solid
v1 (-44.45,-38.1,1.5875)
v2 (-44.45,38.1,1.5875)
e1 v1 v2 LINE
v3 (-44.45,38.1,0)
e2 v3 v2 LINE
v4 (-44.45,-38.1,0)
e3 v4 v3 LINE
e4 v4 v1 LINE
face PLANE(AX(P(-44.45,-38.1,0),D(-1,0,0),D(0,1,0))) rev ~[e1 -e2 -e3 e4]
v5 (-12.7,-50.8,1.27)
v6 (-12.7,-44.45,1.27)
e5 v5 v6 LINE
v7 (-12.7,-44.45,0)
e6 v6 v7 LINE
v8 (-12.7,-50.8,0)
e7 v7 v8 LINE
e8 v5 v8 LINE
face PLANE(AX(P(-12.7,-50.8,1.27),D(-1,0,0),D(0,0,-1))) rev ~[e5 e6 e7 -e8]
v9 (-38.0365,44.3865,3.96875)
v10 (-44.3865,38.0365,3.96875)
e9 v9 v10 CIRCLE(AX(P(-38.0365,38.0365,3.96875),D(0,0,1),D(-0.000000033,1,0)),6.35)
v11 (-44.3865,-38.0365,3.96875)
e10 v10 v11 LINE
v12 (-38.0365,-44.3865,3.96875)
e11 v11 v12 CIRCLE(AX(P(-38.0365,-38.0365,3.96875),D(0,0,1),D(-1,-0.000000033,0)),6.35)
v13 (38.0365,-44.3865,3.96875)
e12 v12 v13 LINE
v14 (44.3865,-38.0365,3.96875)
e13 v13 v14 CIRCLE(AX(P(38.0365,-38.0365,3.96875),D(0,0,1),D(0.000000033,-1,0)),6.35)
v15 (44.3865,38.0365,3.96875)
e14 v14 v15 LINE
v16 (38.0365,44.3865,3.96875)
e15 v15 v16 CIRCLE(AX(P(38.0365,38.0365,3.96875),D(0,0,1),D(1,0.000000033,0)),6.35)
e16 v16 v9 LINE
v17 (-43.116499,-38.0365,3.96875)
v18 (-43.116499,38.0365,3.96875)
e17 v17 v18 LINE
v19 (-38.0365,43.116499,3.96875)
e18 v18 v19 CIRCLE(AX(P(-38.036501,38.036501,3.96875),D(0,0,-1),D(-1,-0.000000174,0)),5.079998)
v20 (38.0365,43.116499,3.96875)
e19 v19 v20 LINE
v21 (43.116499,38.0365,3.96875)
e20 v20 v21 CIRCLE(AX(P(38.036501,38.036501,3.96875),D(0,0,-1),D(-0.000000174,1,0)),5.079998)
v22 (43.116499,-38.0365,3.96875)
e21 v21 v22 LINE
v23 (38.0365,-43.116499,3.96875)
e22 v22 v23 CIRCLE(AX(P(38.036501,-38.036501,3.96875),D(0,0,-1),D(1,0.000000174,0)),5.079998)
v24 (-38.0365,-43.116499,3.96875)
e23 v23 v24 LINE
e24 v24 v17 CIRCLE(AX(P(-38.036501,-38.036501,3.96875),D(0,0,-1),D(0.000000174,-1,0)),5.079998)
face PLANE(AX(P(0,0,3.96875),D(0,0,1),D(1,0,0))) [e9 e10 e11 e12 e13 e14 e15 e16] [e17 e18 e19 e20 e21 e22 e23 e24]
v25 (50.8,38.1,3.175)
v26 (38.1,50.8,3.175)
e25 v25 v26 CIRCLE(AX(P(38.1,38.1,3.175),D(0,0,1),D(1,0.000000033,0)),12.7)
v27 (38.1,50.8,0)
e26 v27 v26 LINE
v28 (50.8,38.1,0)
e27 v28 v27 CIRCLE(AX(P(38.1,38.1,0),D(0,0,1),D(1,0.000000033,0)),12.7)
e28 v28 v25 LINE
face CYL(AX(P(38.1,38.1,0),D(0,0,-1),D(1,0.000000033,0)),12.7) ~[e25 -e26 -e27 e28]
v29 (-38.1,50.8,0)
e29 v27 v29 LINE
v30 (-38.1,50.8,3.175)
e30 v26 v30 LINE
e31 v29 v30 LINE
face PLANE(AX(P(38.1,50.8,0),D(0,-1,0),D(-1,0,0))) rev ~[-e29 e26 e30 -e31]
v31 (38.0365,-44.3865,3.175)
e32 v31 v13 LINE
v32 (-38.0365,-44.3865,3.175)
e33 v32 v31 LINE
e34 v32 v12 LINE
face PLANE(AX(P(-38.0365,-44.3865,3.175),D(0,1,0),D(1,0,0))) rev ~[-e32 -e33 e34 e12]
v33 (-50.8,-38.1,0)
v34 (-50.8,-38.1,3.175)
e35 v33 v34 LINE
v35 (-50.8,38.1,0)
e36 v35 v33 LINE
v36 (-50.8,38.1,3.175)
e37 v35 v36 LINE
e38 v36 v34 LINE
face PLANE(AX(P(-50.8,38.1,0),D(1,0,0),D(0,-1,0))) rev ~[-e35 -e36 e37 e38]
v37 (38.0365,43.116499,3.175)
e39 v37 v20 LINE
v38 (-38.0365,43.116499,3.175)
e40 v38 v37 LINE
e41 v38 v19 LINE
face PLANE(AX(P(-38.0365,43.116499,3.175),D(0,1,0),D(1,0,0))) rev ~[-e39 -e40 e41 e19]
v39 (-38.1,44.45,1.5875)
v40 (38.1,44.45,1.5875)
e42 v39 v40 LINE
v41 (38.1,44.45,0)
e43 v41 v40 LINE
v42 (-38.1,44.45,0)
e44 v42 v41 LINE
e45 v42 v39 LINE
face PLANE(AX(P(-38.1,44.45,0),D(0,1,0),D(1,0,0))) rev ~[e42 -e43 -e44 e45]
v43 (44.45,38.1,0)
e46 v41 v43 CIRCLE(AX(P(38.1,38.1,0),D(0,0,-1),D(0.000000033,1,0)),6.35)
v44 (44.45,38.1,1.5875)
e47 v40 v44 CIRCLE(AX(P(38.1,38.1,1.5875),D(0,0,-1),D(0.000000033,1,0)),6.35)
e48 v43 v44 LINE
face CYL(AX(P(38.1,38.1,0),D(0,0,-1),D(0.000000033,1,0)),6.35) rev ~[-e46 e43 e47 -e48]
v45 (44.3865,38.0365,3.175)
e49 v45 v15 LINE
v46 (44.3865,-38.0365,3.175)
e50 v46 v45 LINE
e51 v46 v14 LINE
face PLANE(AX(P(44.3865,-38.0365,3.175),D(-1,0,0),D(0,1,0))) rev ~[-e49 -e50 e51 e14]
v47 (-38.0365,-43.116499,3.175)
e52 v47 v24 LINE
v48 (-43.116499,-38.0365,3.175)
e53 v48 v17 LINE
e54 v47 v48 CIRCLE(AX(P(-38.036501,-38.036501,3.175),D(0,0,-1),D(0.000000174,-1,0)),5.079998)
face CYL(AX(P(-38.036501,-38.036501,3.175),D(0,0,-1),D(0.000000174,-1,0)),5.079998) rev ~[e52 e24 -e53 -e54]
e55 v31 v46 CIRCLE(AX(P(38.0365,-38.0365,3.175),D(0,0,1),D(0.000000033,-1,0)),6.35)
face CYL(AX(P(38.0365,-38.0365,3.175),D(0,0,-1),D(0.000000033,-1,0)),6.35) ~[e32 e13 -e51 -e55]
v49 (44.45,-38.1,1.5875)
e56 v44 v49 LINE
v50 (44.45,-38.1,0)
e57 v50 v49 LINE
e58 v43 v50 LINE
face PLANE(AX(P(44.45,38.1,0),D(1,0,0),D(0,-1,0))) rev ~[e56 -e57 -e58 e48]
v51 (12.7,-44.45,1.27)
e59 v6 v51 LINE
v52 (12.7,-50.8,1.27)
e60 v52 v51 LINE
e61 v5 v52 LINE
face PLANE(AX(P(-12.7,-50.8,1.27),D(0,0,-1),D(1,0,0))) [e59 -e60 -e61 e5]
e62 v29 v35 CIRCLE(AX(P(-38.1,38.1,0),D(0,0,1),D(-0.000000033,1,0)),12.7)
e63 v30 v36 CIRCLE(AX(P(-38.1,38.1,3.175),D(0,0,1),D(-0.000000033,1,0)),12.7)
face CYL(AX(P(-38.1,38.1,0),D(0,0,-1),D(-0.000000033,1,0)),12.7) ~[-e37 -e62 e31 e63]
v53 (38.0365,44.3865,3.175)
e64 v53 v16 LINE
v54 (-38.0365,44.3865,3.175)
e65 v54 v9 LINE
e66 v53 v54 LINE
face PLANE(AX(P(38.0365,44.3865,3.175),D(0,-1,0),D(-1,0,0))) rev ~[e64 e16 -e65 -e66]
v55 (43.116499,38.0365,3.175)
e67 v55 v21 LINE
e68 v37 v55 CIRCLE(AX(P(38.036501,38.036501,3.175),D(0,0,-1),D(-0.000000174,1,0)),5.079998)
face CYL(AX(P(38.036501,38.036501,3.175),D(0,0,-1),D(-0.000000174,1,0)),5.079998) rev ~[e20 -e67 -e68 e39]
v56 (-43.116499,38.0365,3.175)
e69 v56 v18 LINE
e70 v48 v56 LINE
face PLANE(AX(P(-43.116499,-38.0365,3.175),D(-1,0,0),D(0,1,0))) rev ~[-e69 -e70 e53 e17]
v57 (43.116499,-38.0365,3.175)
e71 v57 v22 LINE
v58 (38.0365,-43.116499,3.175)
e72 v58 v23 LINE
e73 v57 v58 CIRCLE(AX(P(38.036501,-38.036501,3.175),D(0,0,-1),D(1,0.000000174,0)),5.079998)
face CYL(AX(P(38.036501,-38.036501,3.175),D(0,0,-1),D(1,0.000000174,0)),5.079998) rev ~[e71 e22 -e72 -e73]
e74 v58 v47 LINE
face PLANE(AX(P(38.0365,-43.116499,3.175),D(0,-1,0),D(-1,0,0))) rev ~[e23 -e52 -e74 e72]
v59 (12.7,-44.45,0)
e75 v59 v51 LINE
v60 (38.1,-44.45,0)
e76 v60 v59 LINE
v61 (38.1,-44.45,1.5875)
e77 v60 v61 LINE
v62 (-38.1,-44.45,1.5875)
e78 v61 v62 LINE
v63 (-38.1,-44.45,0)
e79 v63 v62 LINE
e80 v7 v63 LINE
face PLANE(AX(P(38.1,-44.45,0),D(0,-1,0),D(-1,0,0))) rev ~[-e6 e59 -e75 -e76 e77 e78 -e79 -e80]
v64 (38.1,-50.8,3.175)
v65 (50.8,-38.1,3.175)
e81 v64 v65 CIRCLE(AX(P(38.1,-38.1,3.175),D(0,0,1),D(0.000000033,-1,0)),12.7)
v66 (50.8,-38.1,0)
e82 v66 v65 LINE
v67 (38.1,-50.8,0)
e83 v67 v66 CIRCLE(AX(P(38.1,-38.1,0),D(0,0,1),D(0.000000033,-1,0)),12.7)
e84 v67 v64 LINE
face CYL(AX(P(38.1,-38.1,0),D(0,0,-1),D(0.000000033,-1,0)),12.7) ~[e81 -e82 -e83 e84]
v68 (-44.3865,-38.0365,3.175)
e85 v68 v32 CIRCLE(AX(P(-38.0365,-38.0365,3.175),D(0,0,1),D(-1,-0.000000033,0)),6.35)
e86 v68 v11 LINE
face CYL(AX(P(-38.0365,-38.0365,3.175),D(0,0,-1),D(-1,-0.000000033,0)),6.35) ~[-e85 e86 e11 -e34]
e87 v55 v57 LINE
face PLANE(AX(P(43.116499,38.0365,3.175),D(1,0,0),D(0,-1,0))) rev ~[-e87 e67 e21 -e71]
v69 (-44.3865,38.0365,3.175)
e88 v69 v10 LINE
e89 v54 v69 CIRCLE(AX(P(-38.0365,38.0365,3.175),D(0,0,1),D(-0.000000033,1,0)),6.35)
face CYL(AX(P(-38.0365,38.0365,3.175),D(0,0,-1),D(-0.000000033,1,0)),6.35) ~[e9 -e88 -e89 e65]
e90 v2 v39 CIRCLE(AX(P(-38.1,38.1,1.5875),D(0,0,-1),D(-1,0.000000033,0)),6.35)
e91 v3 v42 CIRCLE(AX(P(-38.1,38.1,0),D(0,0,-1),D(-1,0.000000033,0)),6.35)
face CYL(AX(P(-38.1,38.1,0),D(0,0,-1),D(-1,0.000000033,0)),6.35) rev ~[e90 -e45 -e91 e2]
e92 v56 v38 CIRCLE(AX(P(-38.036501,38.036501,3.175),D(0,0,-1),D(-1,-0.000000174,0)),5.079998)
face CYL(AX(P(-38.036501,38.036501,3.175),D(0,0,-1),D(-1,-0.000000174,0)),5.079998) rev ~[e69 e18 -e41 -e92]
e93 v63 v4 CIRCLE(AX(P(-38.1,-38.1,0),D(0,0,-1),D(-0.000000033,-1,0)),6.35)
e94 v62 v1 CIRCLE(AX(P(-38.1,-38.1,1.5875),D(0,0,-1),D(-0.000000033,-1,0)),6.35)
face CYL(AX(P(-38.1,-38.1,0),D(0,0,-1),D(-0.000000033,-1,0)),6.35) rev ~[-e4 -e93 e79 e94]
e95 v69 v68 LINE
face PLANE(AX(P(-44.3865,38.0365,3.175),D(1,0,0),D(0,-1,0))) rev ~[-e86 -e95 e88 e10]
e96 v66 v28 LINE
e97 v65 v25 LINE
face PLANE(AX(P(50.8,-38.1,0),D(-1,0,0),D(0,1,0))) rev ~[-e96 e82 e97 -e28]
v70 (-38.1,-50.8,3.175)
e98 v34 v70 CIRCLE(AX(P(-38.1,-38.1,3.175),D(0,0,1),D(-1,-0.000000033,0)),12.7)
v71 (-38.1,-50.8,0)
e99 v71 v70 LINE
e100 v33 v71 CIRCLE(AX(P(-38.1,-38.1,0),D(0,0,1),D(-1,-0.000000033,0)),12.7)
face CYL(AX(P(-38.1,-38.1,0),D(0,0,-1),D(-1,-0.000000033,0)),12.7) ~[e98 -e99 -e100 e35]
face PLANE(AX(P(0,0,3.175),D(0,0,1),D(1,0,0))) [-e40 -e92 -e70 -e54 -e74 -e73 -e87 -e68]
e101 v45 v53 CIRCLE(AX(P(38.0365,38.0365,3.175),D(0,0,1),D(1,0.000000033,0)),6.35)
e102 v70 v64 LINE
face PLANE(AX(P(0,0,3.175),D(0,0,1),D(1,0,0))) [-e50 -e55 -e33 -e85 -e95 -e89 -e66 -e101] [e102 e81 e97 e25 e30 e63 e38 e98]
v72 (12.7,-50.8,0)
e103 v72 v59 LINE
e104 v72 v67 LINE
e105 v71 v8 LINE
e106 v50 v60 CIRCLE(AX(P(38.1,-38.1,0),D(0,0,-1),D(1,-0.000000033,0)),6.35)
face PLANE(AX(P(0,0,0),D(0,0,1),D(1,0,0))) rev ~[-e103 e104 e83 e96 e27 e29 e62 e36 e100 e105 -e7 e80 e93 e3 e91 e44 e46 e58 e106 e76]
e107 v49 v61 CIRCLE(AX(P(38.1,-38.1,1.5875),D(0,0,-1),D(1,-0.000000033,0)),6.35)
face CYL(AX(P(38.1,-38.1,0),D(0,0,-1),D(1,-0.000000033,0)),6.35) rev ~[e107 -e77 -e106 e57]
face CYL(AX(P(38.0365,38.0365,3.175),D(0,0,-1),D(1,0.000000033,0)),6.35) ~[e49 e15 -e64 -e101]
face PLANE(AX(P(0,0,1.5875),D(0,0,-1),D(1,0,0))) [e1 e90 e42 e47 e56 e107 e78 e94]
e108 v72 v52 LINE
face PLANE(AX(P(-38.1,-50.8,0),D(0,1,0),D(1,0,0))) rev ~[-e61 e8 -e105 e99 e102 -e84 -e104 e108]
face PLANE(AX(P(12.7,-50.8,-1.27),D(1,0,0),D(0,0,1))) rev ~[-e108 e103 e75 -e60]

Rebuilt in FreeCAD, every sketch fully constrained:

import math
import FreeCAD as App
import Part
import Sketcher
Q = App.Units.Quantity


def add_polygon(sketch, points):
    """Adds a closed chain of lines whose ends are joined by coincident constraints."""
    first, n = sketch.GeometryCount, len(points)
    for a, b in zip(points, points[1:] + points[:1]):
        sketch.addGeometry(Part.LineSegment(App.Vector(*a, 0), App.Vector(*b, 0)), False)
    for i in range(n):
        sketch.addConstraint(Sketcher.Constraint("Coincident", first + i, 2, first + (i + 1) % n, 1))

doc = App.newDocument("Part")
params = doc.addObject("Spreadsheet::Sheet", "Params")
for row, (alias, value) in enumerate([
    ("sketch1_radius", "0.5 in"),
    ("sketch1_width", "3 in"),
    ("pad1_length", "0.125 in"),
    ("sketch2_width", "3 in"),
    ("sketch2_radius", "0.25 in"),
    ("pocket1_length", "0.0625 in"),
    ("sketch3_width", "1 in"),
    ("sketch3_height", "0.1 in"),
    ("pocket2_length", "1 in"),
    ("sketch4_radius", "0.1999999 in"),
    ("sketch4_radius2", "0.25 in"),
    ("sketch4_width", "2.995 in"),
    ("pad2_length", "0.03125 in"),
], start=1):
    params.set(f"A{row}", alias)
    params.set(f"B{row}", "=" + value)
    params.setAlias(f"B{row}", alias)

body = doc.addObject("PartDesign::Body", "Body")

# Sketch on XY plane
sketch1 = body.newObject("Sketcher::SketchObject", "Sketch")
sketch1.AttachmentSupport = (doc.getObject("XY_Plane"), [""])
sketch1.MapMode = "FlatFace"
sketch1.addGeometry(Part.ArcOfCircle(Part.Circle(App.Vector(38.1, 38.1, 0), App.Vector(0, 0, 1), 12.7), math.radians(0.000002), math.radians(89.999998)), False)
sketch1.addGeometry(Part.LineSegment(App.Vector(38.1, 50.8, 0), App.Vector(-38.1, 50.8, 0)), False)
sketch1.addGeometry(Part.ArcOfCircle(Part.Circle(App.Vector(-38.1, 38.1, 0), App.Vector(0, 0, 1), 12.7), math.radians(90.000002), math.radians(179.999998)), False)
sketch1.addGeometry(Part.LineSegment(App.Vector(-50.8, 38.1, 0), App.Vector(-50.8, -38.1, 0)), False)
sketch1.addGeometry(Part.ArcOfCircle(Part.Circle(App.Vector(-38.1, -38.1, 0), App.Vector(0, 0, 1), 12.7), math.radians(-179.999998), math.radians(-90.000002)), False)
sketch1.addGeometry(Part.LineSegment(App.Vector(-38.1, -50.8, 0), App.Vector(38.1, -50.8, 0)), False)
sketch1.addGeometry(Part.ArcOfCircle(Part.Circle(App.Vector(38.1, -38.1, 0), App.Vector(0, 0, 1), 12.7), math.radians(-89.999998), math.radians(-0.000002)), False)
sketch1.addGeometry(Part.LineSegment(App.Vector(50.8, -38.1, 0), App.Vector(50.8, 38.1, 0)), False)
sketch1.addConstraint(Sketcher.Constraint("Tangent", 0, 2, 1, 1))
sketch1.addConstraint(Sketcher.Constraint("Tangent", 1, 2, 2, 1))
sketch1.addConstraint(Sketcher.Constraint("Tangent", 2, 2, 3, 1))
sketch1.addConstraint(Sketcher.Constraint("Tangent", 3, 2, 4, 1))
sketch1.addConstraint(Sketcher.Constraint("Tangent", 4, 2, 5, 1))
sketch1.addConstraint(Sketcher.Constraint("Tangent", 5, 2, 6, 1))
sketch1.addConstraint(Sketcher.Constraint("Tangent", 6, 2, 7, 1))
sketch1.addConstraint(Sketcher.Constraint("Tangent", 7, 2, 0, 1))
sketch1.addConstraint(Sketcher.Constraint("Horizontal", 1))
sketch1.addConstraint(Sketcher.Constraint("Vertical", 3))
sketch1.addConstraint(Sketcher.Constraint("Horizontal", 5))
sketch1.addConstraint(Sketcher.Constraint("Vertical", 7))
sketch1.addConstraint(Sketcher.Constraint("Equal", 0, 2))
sketch1.addConstraint(Sketcher.Constraint("Equal", 2, 4))
sketch1.addConstraint(Sketcher.Constraint("Equal", 4, 6))
sketch1.addConstraint(Sketcher.Constraint("Symmetric", 0, 3, 4, 3, -1, 1))
sketch1.addConstraint(Sketcher.Constraint("Equal", 5, 3))
sketch1.addConstraint(Sketcher.Constraint("Radius", 0, Q("0.5 in")))
sketch1.addConstraint(Sketcher.Constraint("DistanceX", 1, 2, 1, 1, Q("3 in")))
sketch1.setExpression("Constraints[17]", "Params.sketch1_radius")
sketch1.setExpression("Constraints[18]", "Params.sketch1_width")
pad1 = body.newObject("PartDesign::Pad", "Pad")
pad1.Profile = sketch1
pad1.setExpression("Length", "Params.pad1_length")

# Sketch on XY plane
sketch2 = body.newObject("Sketcher::SketchObject", "Sketch001")
sketch2.AttachmentSupport = (doc.getObject("XY_Plane"), [""])
sketch2.MapMode = "FlatFace"
sketch2.addGeometry(Part.ArcOfCircle(Part.Circle(App.Vector(38.1, -38.1, 0), App.Vector(0, 0, 1), 6.35), math.radians(-89.999998), math.radians(-0.000002)), False)
sketch2.addGeometry(Part.LineSegment(App.Vector(38.1, -44.45, 0), App.Vector(-38.1, -44.45, 0)), False)
sketch2.addGeometry(Part.ArcOfCircle(Part.Circle(App.Vector(-38.1, -38.1, 0), App.Vector(0, 0, 1), 6.35), math.radians(-179.999998), math.radians(-90.000002)), False)
sketch2.addGeometry(Part.LineSegment(App.Vector(-44.45, -38.1, 0), App.Vector(-44.45, 38.1, 0)), False)
sketch2.addGeometry(Part.ArcOfCircle(Part.Circle(App.Vector(-38.1, 38.1, 0), App.Vector(0, 0, 1), 6.35), math.radians(90.000002), math.radians(179.999998)), False)
sketch2.addGeometry(Part.LineSegment(App.Vector(-38.1, 44.45, 0), App.Vector(38.1, 44.45, 0)), False)
sketch2.addGeometry(Part.ArcOfCircle(Part.Circle(App.Vector(38.1, 38.1, 0), App.Vector(0, 0, 1), 6.35), math.radians(0.000002), math.radians(89.999998)), False)
sketch2.addGeometry(Part.LineSegment(App.Vector(44.45, 38.1, 0), App.Vector(44.45, -38.1, 0)), False)
sketch2.addConstraint(Sketcher.Constraint("Tangent", 0, 1, 1, 1))
sketch2.addConstraint(Sketcher.Constraint("Tangent", 1, 2, 2, 2))
sketch2.addConstraint(Sketcher.Constraint("Tangent", 2, 1, 3, 1))
sketch2.addConstraint(Sketcher.Constraint("Tangent", 3, 2, 4, 2))
sketch2.addConstraint(Sketcher.Constraint("Tangent", 4, 1, 5, 1))
sketch2.addConstraint(Sketcher.Constraint("Tangent", 5, 2, 6, 2))
sketch2.addConstraint(Sketcher.Constraint("Tangent", 6, 1, 7, 1))
sketch2.addConstraint(Sketcher.Constraint("Tangent", 7, 2, 0, 2))
sketch2.addConstraint(Sketcher.Constraint("Horizontal", 1))
sketch2.addConstraint(Sketcher.Constraint("Vertical", 3))
sketch2.addConstraint(Sketcher.Constraint("Horizontal", 5))
sketch2.addConstraint(Sketcher.Constraint("Vertical", 7))
sketch2.addConstraint(Sketcher.Constraint("Equal", 0, 2))
sketch2.addConstraint(Sketcher.Constraint("Equal", 2, 4))
sketch2.addConstraint(Sketcher.Constraint("Equal", 4, 6))
sketch2.addConstraint(Sketcher.Constraint("Symmetric", 0, 3, 4, 3, -1, 1))
sketch2.addConstraint(Sketcher.Constraint("Equal", 5, 3))
sketch2.addConstraint(Sketcher.Constraint("DistanceX", 1, 2, 1, 1, Q("3 in")))
sketch2.addConstraint(Sketcher.Constraint("Radius", 0, Q("0.25 in")))
sketch2.setExpression("Constraints[17]", "Params.sketch2_width")
sketch2.setExpression("Constraints[18]", "Params.sketch2_radius")
pocket1 = body.newObject("PartDesign::Pocket", "Pocket")
pocket1.Profile = sketch2
pocket1.setExpression("Length", "Params.pocket1_length")
pocket1.Reversed = True

# Sketch on XZ plane
sketch3 = body.newObject("Sketcher::SketchObject", "Sketch002")
sketch3.AttachmentSupport = (doc.getObject("XZ_Plane"), [""])
sketch3.MapMode = "FlatFace"
sketch3.AttachmentOffset = App.Placement(App.Vector(0, 0, 2 * 25.4), App.Rotation())
add_polygon(sketch3, [(-12.7, 1.27), (-12.7, -1.27), (12.7, -1.27), (12.7, 1.27)])  # lines 0-3
sketch3.addConstraint(Sketcher.Constraint("Vertical", 0))
sketch3.addConstraint(Sketcher.Constraint("Horizontal", 1))
sketch3.addConstraint(Sketcher.Constraint("Vertical", 2))
sketch3.addConstraint(Sketcher.Constraint("Horizontal", 3))
sketch3.addConstraint(Sketcher.Constraint("Symmetric", 0, 2, 2, 2, -1, 1))
sketch3.addConstraint(Sketcher.Constraint("DistanceX", 1, 1, 1, 2, Q("1 in")))
sketch3.addConstraint(Sketcher.Constraint("DistanceY", 0, 2, 0, 1, Q("0.1 in")))
sketch3.setExpression("Constraints[9]", "Params.sketch3_width")
sketch3.setExpression("Constraints[10]", "Params.sketch3_height")
pocket2 = body.newObject("PartDesign::Pocket", "Pocket001")
pocket2.Profile = sketch3
pocket2.setExpression("Length", "Params.pocket2_length")

# Sketch on XY plane
sketch4 = body.newObject("Sketcher::SketchObject", "Sketch003")
sketch4.AttachmentSupport = (doc.getObject("XY_Plane"), [""])
sketch4.MapMode = "FlatFace"
sketch4.AttachmentOffset = App.Placement(App.Vector(0, 0, 0.125 * 25.4), App.Rotation())
sketch4.addGeometry(Part.LineSegment(App.Vector(-38.0365, -44.3865, 0), App.Vector(38.0365, -44.3865, 0)), False)
sketch4.addGeometry(Part.ArcOfCircle(Part.Circle(App.Vector(38.0365, -38.0365, 0), App.Vector(0, 0, 1), 6.35), math.radians(-89.999998), math.radians(-0.000002)), False)
sketch4.addGeometry(Part.LineSegment(App.Vector(44.3865, -38.0365, 0), App.Vector(44.3865, 38.0365, 0)), False)
sketch4.addGeometry(Part.ArcOfCircle(Part.Circle(App.Vector(38.0365, 38.0365, 0), App.Vector(0, 0, 1), 6.35), math.radians(0.000002), math.radians(89.999998)), False)
sketch4.addGeometry(Part.LineSegment(App.Vector(38.0365, 44.3865, 0), App.Vector(-38.0365, 44.3865, 0)), False)
sketch4.addGeometry(Part.ArcOfCircle(Part.Circle(App.Vector(-38.0365, 38.0365, 0), App.Vector(0, 0, 1), 6.35), math.radians(90.000002), math.radians(179.999998)), False)
sketch4.addGeometry(Part.LineSegment(App.Vector(-44.3865, 38.0365, 0), App.Vector(-44.3865, -38.0365, 0)), False)
sketch4.addGeometry(Part.ArcOfCircle(Part.Circle(App.Vector(-38.0365, -38.0365, 0), App.Vector(0, 0, 1), 6.35), math.radians(-179.999998), math.radians(-90.000002)), False)
sketch4.addGeometry(Part.LineSegment(App.Vector(-38.0365, 43.116499, 0), App.Vector(38.0365, 43.116499, 0)), False)
sketch4.addGeometry(Part.ArcOfCircle(Part.Circle(App.Vector(38.036501, 38.036501, 0), App.Vector(0, 0, 1), 5.079998), math.radians(-0.00001), math.radians(90.00001)), False)
sketch4.addGeometry(Part.LineSegment(App.Vector(43.116499, 38.0365, 0), App.Vector(43.116499, -38.0365, 0)), False)
sketch4.addGeometry(Part.ArcOfCircle(Part.Circle(App.Vector(38.036501, -38.036501, 0), App.Vector(0, 0, 1), 5.079998), math.radians(-90.00001), math.radians(0.00001)), False)
sketch4.addGeometry(Part.LineSegment(App.Vector(38.0365, -43.116499, 0), App.Vector(-38.0365, -43.116499, 0)), False)
sketch4.addGeometry(Part.ArcOfCircle(Part.Circle(App.Vector(-38.036501, -38.036501, 0), App.Vector(0, 0, 1), 5.079998), math.radians(179.99999), math.radians(270.00001)), False)
sketch4.addGeometry(Part.LineSegment(App.Vector(-43.116499, -38.0365, 0), App.Vector(-43.116499, 38.0365, 0)), False)
sketch4.addGeometry(Part.ArcOfCircle(Part.Circle(App.Vector(-38.036501, 38.036501, 0), App.Vector(0, 0, 1), 5.079998), math.radians(89.99999), math.radians(180.00001)), False)
sketch4.addConstraint(Sketcher.Constraint("Tangent", 0, 2, 1, 1))
sketch4.addConstraint(Sketcher.Constraint("Tangent", 1, 2, 2, 1))
sketch4.addConstraint(Sketcher.Constraint("Tangent", 2, 2, 3, 1))
sketch4.addConstraint(Sketcher.Constraint("Tangent", 3, 2, 4, 1))
sketch4.addConstraint(Sketcher.Constraint("Tangent", 4, 2, 5, 1))
sketch4.addConstraint(Sketcher.Constraint("Tangent", 5, 2, 6, 1))
sketch4.addConstraint(Sketcher.Constraint("Tangent", 6, 2, 7, 1))
sketch4.addConstraint(Sketcher.Constraint("Tangent", 7, 2, 0, 1))
sketch4.addConstraint(Sketcher.Constraint("Tangent", 8, 2, 9, 2))
sketch4.addConstraint(Sketcher.Constraint("Tangent", 9, 1, 10, 1))
sketch4.addConstraint(Sketcher.Constraint("Tangent", 10, 2, 11, 2))
sketch4.addConstraint(Sketcher.Constraint("Tangent", 11, 1, 12, 1))
sketch4.addConstraint(Sketcher.Constraint("Tangent", 12, 2, 13, 2))
sketch4.addConstraint(Sketcher.Constraint("Tangent", 13, 1, 14, 1))
sketch4.addConstraint(Sketcher.Constraint("Tangent", 14, 2, 15, 2))
sketch4.addConstraint(Sketcher.Constraint("Tangent", 15, 1, 8, 1))
sketch4.addConstraint(Sketcher.Constraint("Horizontal", 0))
sketch4.addConstraint(Sketcher.Constraint("Vertical", 2))
sketch4.addConstraint(Sketcher.Constraint("Horizontal", 4))
sketch4.addConstraint(Sketcher.Constraint("Vertical", 6))
sketch4.addConstraint(Sketcher.Constraint("Horizontal", 8))
sketch4.addConstraint(Sketcher.Constraint("Vertical", 10))
sketch4.addConstraint(Sketcher.Constraint("Horizontal", 12))
sketch4.addConstraint(Sketcher.Constraint("Vertical", 14))
sketch4.addConstraint(Sketcher.Constraint("Coincident", 9, 3, 3, 3))
sketch4.addConstraint(Sketcher.Constraint("Coincident", 11, 3, 1, 3))
sketch4.addConstraint(Sketcher.Constraint("Coincident", 13, 3, 7, 3))
sketch4.addConstraint(Sketcher.Constraint("Equal", 1, 3))
sketch4.addConstraint(Sketcher.Constraint("Equal", 3, 5))
sketch4.addConstraint(Sketcher.Constraint("Equal", 5, 7))
sketch4.addConstraint(Sketcher.Constraint("Equal", 13, 15))
sketch4.addConstraint(Sketcher.Constraint("Symmetric", 1, 3, 5, 3, -1, 1))
sketch4.addConstraint(Sketcher.Constraint("Equal", 12, 2))
sketch4.addConstraint(Sketcher.Constraint("Radius", 9, Q("0.1999999 in")))
sketch4.addConstraint(Sketcher.Constraint("Radius", 1, Q("0.25 in")))
sketch4.addConstraint(Sketcher.Constraint("DistanceX", 0, 1, 0, 2, Q("2.995 in")))
sketch4.setExpression("Constraints[33]", "Params.sketch4_radius")
sketch4.setExpression("Constraints[34]", "Params.sketch4_radius2")
sketch4.setExpression("Constraints[35]", "Params.sketch4_width")
pad2 = body.newObject("PartDesign::Pad", "Pad001")
pad2.Profile = sketch4
pad2.setExpression("Length", "Params.pad2_length")

doc.recompute()
